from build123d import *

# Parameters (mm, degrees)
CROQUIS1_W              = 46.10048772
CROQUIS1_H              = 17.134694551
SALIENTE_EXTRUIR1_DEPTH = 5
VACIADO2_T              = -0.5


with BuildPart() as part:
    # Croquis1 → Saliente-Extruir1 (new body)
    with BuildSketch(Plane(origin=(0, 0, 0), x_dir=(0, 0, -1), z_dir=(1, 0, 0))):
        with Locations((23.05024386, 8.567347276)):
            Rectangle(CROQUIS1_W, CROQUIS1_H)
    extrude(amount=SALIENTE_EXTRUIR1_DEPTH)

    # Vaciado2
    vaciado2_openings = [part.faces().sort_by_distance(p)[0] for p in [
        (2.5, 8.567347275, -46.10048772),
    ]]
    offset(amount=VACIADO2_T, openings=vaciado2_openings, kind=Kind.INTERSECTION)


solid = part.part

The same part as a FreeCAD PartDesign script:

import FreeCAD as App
import Part
import Sketcher

V = App.Vector


def faces_at(feature, points):
    """Names of the faces that lie closest to the given points."""
    faces = feature.Shape.Faces
    near = lambda p: min(range(len(faces)), key=lambda i: faces[i].distToShape(Part.Vertex(*p))[0])
    return sorted({f"Face{near(p) + 1}" for p in points})

doc = App.newDocument("Part")
body = doc.addObject("PartDesign::Body", "Body")

# Sketch on YZ plane
sketch1 = doc.addObject("Sketcher::SketchObject", "Sketch")
body.addObject(sketch1)
sketch1.AttachmentSupport = (doc.YZ_Plane, [""])
sketch1.MapMode = "FlatFace"
sketch1.addGeometry(Part.LineSegment(V(17.134695, 0, 0), V(0, 0, 0)), False)
sketch1.addGeometry(Part.LineSegment(V(0, 0, 0), V(0, -46.100488, 0)), False)
sketch1.addGeometry(Part.LineSegment(V(0, -46.100488, 0), V(17.134695, -46.100488, 0)), False)
sketch1.addGeometry(Part.LineSegment(V(17.134695, -46.100488, 0), V(17.134695, 0, 0)), False)
sketch1.addConstraint(Sketcher.Constraint("Coincident", 0, 2, 1, 1))
sketch1.addConstraint(Sketcher.Constraint("Coincident", 1, 2, 2, 1))
sketch1.addConstraint(Sketcher.Constraint("Coincident", 2, 2, 3, 1))
sketch1.addConstraint(Sketcher.Constraint("Coincident", 3, 2, 0, 1))
sketch1.addConstraint(Sketcher.Constraint("Horizontal", 0))
sketch1.addConstraint(Sketcher.Constraint("Vertical", 1))
sketch1.addConstraint(Sketcher.Constraint("Horizontal", 2))
sketch1.addConstraint(Sketcher.Constraint("Vertical", 3))
sketch1.addConstraint(Sketcher.Constraint("Coincident", 0, 2, -1, 1))
sketch1.addConstraint(Sketcher.Constraint("DistanceX", 0, 2, 0, 1, 17.134695))
sketch1.addConstraint(Sketcher.Constraint("DistanceY", 1, 2, 1, 1, 46.100488))
pad1 = doc.addObject("PartDesign::Pad", "Pad")
body.addObject(pad1)
pad1.Profile = sketch1
pad1.Length = 5
doc.recompute()

thickness = doc.addObject("PartDesign::Thickness", "Thickness")
body.addObject(thickness)
thickness.Base = (pad1, faces_at(pad1, [(2.5, 8.567, -46.1)]))
thickness.Value = 0.5
thickness.Reversed = True
thickness.Join = "Intersection"

doc.recompute()
